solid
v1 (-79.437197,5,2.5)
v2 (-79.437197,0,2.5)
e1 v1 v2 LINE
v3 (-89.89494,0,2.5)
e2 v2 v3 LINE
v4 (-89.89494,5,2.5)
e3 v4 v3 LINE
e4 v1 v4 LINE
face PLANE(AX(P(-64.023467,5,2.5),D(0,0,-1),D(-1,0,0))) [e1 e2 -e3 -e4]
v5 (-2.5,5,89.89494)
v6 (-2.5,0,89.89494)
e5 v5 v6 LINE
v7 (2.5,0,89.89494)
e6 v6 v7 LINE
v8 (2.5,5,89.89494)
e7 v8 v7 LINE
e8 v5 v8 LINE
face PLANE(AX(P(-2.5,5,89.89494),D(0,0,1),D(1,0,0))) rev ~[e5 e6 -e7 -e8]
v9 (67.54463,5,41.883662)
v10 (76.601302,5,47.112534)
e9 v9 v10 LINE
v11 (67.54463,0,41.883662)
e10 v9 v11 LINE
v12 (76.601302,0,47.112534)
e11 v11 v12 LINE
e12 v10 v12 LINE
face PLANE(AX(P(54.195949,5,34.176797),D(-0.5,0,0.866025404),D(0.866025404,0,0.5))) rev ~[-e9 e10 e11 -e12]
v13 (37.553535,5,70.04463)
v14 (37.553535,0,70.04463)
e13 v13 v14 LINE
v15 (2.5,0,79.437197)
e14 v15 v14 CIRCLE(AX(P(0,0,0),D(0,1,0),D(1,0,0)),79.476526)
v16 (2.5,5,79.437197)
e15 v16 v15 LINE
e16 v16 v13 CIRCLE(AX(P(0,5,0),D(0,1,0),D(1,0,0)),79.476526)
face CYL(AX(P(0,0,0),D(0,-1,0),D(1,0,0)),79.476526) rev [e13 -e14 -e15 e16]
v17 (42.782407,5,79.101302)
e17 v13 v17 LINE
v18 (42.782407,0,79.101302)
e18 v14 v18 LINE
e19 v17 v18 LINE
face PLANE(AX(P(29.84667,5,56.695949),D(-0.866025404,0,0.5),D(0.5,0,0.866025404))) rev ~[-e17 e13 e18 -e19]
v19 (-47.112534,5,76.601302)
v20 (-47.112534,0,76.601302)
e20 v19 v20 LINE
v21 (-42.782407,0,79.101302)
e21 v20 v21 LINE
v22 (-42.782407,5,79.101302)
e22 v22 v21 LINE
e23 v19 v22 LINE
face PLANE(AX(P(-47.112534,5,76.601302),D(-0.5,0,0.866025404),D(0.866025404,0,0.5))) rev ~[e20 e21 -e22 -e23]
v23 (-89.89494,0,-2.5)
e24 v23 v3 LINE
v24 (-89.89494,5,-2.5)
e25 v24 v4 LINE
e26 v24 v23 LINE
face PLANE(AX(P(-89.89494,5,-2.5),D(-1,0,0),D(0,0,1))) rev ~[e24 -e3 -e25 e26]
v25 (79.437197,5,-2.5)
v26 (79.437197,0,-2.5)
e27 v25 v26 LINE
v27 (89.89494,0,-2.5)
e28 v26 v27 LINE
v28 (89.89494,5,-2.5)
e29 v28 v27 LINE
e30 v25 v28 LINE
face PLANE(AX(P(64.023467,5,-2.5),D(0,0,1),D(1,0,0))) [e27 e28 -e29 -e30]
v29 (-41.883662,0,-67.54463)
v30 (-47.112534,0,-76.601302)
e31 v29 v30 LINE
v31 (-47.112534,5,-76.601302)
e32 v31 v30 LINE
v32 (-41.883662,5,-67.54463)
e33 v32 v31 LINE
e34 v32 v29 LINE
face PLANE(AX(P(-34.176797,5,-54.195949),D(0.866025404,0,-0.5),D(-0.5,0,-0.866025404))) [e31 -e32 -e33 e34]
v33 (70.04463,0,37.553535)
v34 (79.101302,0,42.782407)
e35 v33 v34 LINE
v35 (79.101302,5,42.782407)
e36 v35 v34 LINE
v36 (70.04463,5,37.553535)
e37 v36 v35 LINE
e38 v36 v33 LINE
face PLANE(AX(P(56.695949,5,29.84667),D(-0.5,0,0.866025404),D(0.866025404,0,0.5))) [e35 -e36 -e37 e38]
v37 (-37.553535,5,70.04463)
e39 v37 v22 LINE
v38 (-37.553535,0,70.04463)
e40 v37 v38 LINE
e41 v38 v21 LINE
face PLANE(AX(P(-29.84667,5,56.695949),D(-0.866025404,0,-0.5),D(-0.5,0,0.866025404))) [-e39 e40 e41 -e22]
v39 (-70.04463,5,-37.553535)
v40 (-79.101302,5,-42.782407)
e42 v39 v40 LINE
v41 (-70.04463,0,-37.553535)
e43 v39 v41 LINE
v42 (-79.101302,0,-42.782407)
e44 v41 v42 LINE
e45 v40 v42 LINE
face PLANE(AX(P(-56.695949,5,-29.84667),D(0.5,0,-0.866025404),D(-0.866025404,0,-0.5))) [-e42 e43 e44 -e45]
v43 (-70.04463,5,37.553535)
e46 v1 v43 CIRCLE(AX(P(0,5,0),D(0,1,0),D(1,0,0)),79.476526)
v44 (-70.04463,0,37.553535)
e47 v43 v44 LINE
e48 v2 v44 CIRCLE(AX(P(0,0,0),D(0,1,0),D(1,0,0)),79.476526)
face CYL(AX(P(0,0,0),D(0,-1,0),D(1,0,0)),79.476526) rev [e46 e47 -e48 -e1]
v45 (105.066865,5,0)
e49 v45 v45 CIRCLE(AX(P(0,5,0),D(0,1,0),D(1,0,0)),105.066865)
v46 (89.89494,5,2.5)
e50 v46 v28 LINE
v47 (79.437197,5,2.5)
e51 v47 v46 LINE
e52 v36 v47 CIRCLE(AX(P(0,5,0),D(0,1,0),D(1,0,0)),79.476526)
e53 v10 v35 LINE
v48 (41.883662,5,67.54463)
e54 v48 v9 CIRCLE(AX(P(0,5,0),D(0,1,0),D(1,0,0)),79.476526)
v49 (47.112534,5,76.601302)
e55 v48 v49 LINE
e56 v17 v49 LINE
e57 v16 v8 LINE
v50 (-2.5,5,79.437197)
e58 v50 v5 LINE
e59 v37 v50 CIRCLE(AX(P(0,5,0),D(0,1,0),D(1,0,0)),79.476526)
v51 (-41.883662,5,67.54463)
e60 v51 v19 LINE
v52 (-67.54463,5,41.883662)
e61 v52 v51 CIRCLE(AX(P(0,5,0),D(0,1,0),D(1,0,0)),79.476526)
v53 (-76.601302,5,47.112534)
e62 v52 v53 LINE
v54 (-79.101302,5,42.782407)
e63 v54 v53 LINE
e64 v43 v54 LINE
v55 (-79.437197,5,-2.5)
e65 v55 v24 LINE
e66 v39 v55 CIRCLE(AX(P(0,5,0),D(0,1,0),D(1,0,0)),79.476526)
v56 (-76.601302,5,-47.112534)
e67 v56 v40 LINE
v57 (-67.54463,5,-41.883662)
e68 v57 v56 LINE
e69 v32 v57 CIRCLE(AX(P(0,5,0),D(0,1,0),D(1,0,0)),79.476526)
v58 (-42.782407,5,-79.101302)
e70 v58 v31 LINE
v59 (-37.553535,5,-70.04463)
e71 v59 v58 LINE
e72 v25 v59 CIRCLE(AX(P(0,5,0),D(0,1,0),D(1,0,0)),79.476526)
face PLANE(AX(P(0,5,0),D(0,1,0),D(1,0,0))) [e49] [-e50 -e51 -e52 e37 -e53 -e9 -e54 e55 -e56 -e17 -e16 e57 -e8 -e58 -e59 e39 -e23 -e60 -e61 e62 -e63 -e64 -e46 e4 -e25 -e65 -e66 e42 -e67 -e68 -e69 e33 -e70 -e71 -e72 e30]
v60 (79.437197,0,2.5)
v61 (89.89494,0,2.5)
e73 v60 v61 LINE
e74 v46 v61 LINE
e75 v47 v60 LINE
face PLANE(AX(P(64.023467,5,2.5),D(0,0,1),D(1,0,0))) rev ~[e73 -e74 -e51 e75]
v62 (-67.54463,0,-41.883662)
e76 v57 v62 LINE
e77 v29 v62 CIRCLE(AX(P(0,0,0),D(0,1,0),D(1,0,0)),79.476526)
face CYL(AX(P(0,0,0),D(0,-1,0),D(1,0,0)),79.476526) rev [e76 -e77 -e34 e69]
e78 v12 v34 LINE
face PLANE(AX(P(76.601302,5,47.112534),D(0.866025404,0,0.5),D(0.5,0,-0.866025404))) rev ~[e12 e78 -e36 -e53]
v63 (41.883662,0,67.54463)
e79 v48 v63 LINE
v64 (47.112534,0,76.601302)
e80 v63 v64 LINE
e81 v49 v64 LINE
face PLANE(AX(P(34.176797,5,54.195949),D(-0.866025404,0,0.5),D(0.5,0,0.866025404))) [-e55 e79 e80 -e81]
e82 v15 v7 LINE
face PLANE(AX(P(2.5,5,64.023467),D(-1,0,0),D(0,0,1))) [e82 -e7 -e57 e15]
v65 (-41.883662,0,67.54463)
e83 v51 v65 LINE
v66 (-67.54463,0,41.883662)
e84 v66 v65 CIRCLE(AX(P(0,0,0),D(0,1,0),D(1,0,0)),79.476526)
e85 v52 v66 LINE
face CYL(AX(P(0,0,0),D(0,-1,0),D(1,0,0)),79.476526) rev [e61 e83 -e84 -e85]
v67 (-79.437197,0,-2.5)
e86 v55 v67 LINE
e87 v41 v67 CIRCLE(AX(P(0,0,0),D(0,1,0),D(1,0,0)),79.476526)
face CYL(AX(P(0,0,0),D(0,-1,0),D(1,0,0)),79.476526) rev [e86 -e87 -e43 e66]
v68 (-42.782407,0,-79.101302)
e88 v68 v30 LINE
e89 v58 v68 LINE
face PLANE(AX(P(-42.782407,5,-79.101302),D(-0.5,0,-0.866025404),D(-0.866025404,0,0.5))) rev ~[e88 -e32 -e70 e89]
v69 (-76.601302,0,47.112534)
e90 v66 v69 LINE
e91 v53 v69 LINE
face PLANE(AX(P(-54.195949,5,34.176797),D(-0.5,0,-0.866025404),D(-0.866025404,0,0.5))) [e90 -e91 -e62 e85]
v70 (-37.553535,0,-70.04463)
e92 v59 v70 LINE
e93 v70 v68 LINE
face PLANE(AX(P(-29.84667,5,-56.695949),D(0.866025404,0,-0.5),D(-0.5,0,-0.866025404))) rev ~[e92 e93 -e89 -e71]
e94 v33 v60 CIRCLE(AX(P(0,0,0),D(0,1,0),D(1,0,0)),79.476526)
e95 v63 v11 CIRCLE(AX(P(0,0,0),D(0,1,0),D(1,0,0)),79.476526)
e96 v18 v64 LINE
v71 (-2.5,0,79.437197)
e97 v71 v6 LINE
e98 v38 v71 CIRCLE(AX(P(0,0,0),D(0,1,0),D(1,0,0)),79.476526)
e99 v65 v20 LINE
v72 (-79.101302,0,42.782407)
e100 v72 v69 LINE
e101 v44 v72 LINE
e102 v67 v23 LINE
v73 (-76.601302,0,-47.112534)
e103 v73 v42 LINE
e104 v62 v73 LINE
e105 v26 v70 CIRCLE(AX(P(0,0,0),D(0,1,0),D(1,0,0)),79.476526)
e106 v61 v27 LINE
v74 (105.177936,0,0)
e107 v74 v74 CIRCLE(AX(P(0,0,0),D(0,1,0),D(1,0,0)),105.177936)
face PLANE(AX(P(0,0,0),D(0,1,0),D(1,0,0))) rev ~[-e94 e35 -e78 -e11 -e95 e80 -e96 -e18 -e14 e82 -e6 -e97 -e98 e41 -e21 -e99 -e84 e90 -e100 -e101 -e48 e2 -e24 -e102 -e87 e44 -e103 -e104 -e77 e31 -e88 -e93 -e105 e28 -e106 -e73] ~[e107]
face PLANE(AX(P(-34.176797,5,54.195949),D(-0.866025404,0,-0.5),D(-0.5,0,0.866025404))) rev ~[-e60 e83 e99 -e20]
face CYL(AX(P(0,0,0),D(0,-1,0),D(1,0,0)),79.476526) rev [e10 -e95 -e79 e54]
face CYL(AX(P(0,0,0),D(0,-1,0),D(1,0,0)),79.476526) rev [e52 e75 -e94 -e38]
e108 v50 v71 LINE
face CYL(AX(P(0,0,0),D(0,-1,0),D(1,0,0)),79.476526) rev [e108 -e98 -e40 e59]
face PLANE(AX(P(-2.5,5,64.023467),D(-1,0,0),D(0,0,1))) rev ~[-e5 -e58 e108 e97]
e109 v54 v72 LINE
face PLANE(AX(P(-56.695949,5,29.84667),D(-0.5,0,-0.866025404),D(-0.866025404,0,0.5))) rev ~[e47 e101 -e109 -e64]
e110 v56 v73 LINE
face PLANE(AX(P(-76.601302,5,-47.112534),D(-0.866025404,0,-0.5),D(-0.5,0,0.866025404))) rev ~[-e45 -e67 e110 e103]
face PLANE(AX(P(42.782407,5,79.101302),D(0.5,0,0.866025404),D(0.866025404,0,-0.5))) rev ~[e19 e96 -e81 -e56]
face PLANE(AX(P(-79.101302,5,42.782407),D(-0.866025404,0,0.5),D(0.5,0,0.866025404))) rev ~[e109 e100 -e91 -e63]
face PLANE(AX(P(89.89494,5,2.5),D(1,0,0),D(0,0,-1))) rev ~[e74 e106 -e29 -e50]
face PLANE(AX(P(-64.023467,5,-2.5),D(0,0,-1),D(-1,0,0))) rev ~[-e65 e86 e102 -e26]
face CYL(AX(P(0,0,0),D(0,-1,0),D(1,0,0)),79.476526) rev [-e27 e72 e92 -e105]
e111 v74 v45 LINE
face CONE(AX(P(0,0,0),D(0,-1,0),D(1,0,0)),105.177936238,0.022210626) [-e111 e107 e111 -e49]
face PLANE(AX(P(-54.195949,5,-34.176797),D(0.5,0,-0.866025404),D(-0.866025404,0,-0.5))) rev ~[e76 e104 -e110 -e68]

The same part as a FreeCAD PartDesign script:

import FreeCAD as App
import Part
import Sketcher
Q = App.Units.Quantity

doc = App.newDocument("Part")
body = doc.addObject("PartDesign::Body", "Body")

# Sketch on XZ plane
sketch1 = body.newObject("Sketcher::SketchObject", "Sketch")
sketch1.AttachmentSupport = (doc.getObject("XZ_Plane"), [""])
sketch1.MapMode = "FlatFace"
sketch1.addGeometry([
    Part.Circle(App.Vector(0, 0, 0), App.Vector(0, 0, 1), 105),
    Part.Circle(App.Vector(0, 0, 0), App.Vector(0, 0, 1), 79),
], False)
sketch1.addConstraint([
    Sketcher.Constraint("Coincident", 0, 3, -1, 1),
    Sketcher.Constraint("Coincident", 1, 3, -1, 1),
    Sketcher.Constraint("Diameter", 0, Q("210.355872 mm")),
    Sketcher.Constraint("Diameter", 1, Q("158.953053 mm")),
])
pad1 = body.newObject("PartDesign::Pad", "Pad")
pad1.Profile = sketch1
pad1.Length = 5
pad1.Reversed = True

# Sketch on XY plane
sketch2 = body.newObject("Sketcher::SketchObject", "Sketch001")
sketch2.AttachmentSupport = (doc.getObject("XY_Plane"), [""])
sketch2.MapMode = "FlatFace"
sketch2.addGeometry([
    Part.LineSegment(App.Vector(105, 6, 0), App.Vector(105, 0, 0)),
    Part.LineSegment(App.Vector(105, 0, 0), App.Vector(111, 0, 0)),
    Part.LineSegment(App.Vector(111, 0, 0), App.Vector(111, 6, 0)),
    Part.LineSegment(App.Vector(111, 6, 0), App.Vector(105, 6, 0)),
], False)
sketch2.addConstraint([
    Sketcher.Constraint("Coincident", 0, 2, 1, 1),
    Sketcher.Constraint("Coincident", 1, 2, 2, 1),
    Sketcher.Constraint("Coincident", 2, 2, 3, 1),
    Sketcher.Constraint("Coincident", 3, 2, 0, 1),
    Sketcher.Constraint("Horizontal", 1),
    Sketcher.Constraint("Vertical", 2),
    Sketcher.Constraint("Horizontal", 3),
    Sketcher.Constraint("PointOnObject", 0, 2, -1),
    Sketcher.Constraint("Distance", 0, Q("6.301959 mm")),
    Sketcher.Constraint("DistanceX", 1, 1, 1, 2, Q("5.565376 mm")),
    Sketcher.Constraint("DistanceX", 3, 2, 3, 1, Q("5.705335 mm")),
    Sketcher.Constraint("DistanceX", -1, 1, 0, 2, Q("105.177936 mm")),
])
groove = body.newObject("PartDesign::Groove", "Groove")
groove.Profile = sketch2
groove.ReferenceAxis = (sketch2, ["V_Axis"])
groove.Angle = 360

# Sketch on XZ plane
sketch3 = body.newObject("Sketcher::SketchObject", "Sketch002")
sketch3.AttachmentSupport = (doc.getObject("XZ_Plane"), [""])
sketch3.MapMode = "FlatFace"
sketch3.AttachmentOffset = App.Placement(App.Vector(0, 0, -5), App.Rotation())
sketch3.addGeometry([
    Part.LineSegment(App.Vector(64, -2, 0), App.Vector(64, 2, 0)),
    Part.LineSegment(App.Vector(64, 2, 0), App.Vector(90, 2, 0)),
    Part.LineSegment(App.Vector(90, 2, 0), App.Vector(90, -2, 0)),
    Part.LineSegment(App.Vector(90, -2, 0), App.Vector(64, -2, 0)),
], False)
sketch3.addConstraint([
    Sketcher.Constraint("Coincident", 0, 2, 1, 1),
    Sketcher.Constraint("Coincident", 1, 2, 2, 1),
    Sketcher.Constraint("Coincident", 2, 2, 3, 1),
    Sketcher.Constraint("Coincident", 3, 2, 0, 1),
    Sketcher.Constraint("Vertical", 0),
    Sketcher.Constraint("Horizontal", 1),
    Sketcher.Constraint("Vertical", 2),
    Sketcher.Constraint("Horizontal", 3),
    Sketcher.Constraint("DistanceY", 0, 1, 0, 2, Q("5 mm")),
    Sketcher.Constraint("DistanceY", -1, 1, 0, 2, Q("2.5 mm")),
    Sketcher.Constraint("DistanceX", 1, 1, 1, 2, Q("25.871473 mm")),
    Sketcher.Constraint("DistanceX", -1, 1, 1, 2, Q("89.89494 mm")),
])
pocket1 = body.newObject("PartDesign::Pocket", "Pocket")
pocket1.Profile = sketch3
pocket1.Length = 5
pocket1.Reversed = True
doc.recompute()

polarpattern = body.newObject("PartDesign::PolarPattern", "PolarPattern")
polarpattern.Originals = [pocket1]
polarpattern.Axis = (doc.getObject("Y_Axis"), [""])
polarpattern.Angle = 240
polarpattern.Occurrences = 9
polarpattern.Reversed = True
body.Tip = polarpattern

doc.recompute()
